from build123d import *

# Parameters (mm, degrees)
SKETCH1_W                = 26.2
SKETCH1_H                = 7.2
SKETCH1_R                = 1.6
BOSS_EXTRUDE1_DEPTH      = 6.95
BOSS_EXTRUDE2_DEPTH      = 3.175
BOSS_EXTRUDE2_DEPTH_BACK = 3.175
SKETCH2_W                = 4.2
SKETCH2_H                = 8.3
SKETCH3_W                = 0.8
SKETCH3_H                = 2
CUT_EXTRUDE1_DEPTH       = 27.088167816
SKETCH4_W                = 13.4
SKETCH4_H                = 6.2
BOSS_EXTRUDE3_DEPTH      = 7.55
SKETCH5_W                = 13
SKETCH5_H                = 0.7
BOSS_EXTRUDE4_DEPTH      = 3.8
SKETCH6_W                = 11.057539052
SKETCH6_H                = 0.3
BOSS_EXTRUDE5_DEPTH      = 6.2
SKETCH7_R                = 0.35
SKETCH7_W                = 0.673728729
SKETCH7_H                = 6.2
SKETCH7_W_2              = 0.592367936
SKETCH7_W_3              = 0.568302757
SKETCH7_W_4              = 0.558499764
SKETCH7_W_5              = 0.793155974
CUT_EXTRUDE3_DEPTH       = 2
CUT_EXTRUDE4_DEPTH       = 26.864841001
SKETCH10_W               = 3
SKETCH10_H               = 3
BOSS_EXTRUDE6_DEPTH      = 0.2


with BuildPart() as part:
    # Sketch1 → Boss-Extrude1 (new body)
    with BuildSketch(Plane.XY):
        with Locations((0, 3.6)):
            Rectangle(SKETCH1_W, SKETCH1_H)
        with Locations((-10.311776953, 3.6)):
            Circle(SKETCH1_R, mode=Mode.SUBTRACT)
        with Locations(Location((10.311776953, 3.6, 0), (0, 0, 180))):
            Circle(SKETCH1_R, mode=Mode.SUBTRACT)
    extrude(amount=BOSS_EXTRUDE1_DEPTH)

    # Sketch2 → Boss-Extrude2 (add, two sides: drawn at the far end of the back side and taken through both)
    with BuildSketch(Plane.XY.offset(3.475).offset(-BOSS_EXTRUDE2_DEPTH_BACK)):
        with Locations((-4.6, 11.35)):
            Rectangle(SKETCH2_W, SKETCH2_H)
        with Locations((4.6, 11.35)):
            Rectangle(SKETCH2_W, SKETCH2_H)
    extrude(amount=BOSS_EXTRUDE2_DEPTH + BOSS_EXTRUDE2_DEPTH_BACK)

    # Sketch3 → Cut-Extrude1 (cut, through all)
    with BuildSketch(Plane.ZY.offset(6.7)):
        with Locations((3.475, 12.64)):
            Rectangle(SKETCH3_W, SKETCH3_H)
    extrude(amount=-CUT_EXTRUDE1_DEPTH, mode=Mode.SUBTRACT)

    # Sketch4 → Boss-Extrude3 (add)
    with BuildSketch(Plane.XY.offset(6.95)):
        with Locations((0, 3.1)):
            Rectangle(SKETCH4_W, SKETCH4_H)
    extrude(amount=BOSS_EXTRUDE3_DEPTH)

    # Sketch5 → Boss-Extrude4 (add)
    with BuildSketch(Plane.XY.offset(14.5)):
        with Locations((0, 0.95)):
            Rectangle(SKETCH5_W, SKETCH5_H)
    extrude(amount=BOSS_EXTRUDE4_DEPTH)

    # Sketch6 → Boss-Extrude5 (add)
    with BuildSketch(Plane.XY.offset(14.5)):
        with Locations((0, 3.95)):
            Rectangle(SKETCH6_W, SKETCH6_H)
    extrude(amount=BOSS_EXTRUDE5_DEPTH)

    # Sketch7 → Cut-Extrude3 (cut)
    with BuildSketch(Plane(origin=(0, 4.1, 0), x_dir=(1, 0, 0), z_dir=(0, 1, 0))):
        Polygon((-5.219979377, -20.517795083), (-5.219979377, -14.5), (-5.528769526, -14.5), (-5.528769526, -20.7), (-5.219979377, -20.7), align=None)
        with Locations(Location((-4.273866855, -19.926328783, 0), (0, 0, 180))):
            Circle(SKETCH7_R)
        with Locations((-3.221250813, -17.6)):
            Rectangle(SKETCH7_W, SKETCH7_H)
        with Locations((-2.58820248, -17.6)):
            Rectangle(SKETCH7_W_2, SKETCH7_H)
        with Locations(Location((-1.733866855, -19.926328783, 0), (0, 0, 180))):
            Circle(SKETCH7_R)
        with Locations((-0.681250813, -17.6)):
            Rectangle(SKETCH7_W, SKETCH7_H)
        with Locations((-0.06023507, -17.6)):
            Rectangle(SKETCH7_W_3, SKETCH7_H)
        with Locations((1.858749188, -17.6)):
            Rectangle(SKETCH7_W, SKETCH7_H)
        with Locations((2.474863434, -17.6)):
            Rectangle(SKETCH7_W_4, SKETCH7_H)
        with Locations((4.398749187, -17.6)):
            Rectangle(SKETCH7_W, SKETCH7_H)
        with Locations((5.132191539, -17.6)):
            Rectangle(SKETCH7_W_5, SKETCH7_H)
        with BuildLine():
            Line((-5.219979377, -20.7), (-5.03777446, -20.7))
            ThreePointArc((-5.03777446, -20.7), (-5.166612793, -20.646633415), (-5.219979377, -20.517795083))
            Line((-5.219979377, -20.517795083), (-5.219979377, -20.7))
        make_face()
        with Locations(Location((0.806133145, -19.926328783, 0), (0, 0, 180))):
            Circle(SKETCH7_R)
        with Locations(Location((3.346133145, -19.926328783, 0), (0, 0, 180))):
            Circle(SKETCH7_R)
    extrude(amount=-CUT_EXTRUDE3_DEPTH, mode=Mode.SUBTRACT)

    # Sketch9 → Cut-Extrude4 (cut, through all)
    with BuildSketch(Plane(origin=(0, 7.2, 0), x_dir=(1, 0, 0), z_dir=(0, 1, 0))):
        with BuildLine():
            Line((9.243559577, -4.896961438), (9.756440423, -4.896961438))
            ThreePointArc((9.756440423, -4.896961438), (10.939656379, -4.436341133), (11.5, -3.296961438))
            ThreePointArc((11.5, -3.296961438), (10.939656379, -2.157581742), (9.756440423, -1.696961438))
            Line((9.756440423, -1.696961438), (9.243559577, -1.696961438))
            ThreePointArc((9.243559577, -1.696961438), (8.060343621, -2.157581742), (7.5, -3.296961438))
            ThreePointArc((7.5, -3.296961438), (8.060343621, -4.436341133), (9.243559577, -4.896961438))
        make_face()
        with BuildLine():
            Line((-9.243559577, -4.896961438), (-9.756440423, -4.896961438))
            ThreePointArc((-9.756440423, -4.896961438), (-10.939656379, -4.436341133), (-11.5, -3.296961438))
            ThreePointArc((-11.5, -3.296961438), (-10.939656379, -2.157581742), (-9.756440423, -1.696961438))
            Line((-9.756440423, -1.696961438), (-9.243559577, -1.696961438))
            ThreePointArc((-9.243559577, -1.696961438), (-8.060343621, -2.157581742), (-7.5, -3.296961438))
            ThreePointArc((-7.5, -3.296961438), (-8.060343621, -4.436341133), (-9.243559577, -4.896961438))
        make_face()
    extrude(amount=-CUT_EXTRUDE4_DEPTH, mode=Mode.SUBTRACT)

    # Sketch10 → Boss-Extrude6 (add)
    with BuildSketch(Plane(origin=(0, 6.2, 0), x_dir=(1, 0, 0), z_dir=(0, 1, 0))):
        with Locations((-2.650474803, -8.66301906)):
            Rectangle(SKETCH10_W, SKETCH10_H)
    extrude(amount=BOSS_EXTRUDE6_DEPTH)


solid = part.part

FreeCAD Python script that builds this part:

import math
import FreeCAD as App
import Part
import Sketcher

doc = App.newDocument("Part")
body = doc.addObject("PartDesign::Body", "Body")

sketch1 = body.newObject("Sketcher::SketchObject", "Sketch")
sketch1.AttachmentSupport = (doc.getObject("XY_Plane"), [""])
sketch1.MapMode = "FlatFace"
sketch1.addGeometry([
    Part.LineSegment(App.Vector(-13.1, 7.2, 0), App.Vector(-13.1, 0, 0)),
    Part.LineSegment(App.Vector(-13.1, 0, 0), App.Vector(13.1, 0, 0)),
    Part.LineSegment(App.Vector(13.1, 0, 0), App.Vector(13.1, 7.2, 0)),
    Part.LineSegment(App.Vector(13.1, 7.2, 0), App.Vector(-13.1, 7.2, 0)),
    Part.Circle(App.Vector(-10.3, 3.6, 0), App.Vector(0, 0, 1), 1.6),
    Part.Circle(App.Vector(10.3, 3.6, 0), App.Vector(0, 0, 1), 1.6),
], False)
sketch1.addConstraint([
    Sketcher.Constraint("Coincident", 0, 2, 1, 1),
    Sketcher.Constraint("Coincident", 1, 2, 2, 1),
    Sketcher.Constraint("Coincident", 2, 2, 3, 1),
    Sketcher.Constraint("Coincident", 3, 2, 0, 1),
    Sketcher.Constraint("Vertical", 0),
    Sketcher.Constraint("Horizontal", 1),
    Sketcher.Constraint("Vertical", 2),
    Sketcher.Constraint("Horizontal", 3),
    Sketcher.Constraint("Equal", 4, 5),
    Sketcher.Constraint("Symmetric", 0, 2, 1, 2, -1, 1),
    Sketcher.Constraint("Symmetric", 4, 3, 5, 3, -2),
    Sketcher.Constraint("Diameter", 4, 3.2),
    Sketcher.Constraint("DistanceX", 1, 1, 1, 2, 26.2),
    Sketcher.Constraint("DistanceY", 0, 2, 0, 1, 7.2),
    Sketcher.Constraint("DistanceY", -1, 1, 4, 3, 3.6),
    Sketcher.Constraint("DistanceX", 4, 3, -1, 1, 10.311777),
])
pad1 = body.newObject("PartDesign::Pad", "Pad")
pad1.Profile = sketch1
pad1.Length = 6.95

sketch2 = body.newObject("Sketcher::SketchObject", "Sketch001")
sketch2.AttachmentSupport = (doc.getObject("XY_Plane"), [""])
sketch2.MapMode = "FlatFace"
sketch2.AttachmentOffset = App.Placement(App.Vector(0, 0, 3.475), App.Rotation())
sketch2.addGeometry([
    Part.LineSegment(App.Vector(-6.7, 15.5, 0), App.Vector(-6.7, 7.2, 0)),
    Part.LineSegment(App.Vector(-6.7, 7.2, 0), App.Vector(-2.5, 7.2, 0)),
    Part.LineSegment(App.Vector(-2.5, 7.2, 0), App.Vector(-2.5, 15.5, 0)),
    Part.LineSegment(App.Vector(-2.5, 15.5, 0), App.Vector(-6.7, 15.5, 0)),
    Part.LineSegment(App.Vector(2.5, 15.5, 0), App.Vector(2.5, 7.2, 0)),
    Part.LineSegment(App.Vector(2.5, 7.2, 0), App.Vector(6.7, 7.2, 0)),
    Part.LineSegment(App.Vector(6.7, 7.2, 0), App.Vector(6.7, 15.5, 0)),
    Part.LineSegment(App.Vector(6.7, 15.5, 0), App.Vector(2.5, 15.5, 0)),
], False)
sketch2.addConstraint([
    Sketcher.Constraint("Coincident", 0, 2, 1, 1),
    Sketcher.Constraint("Coincident", 1, 2, 2, 1),
    Sketcher.Constraint("Coincident", 2, 2, 3, 1),
    Sketcher.Constraint("Coincident", 3, 2, 0, 1),
    Sketcher.Constraint("Coincident", 4, 2, 5, 1),
    Sketcher.Constraint("Coincident", 5, 2, 6, 1),
    Sketcher.Constraint("Coincident", 6, 2, 7, 1),
    Sketcher.Constraint("Coincident", 7, 2, 4, 1),
    Sketcher.Constraint("Vertical", 0),
    Sketcher.Constraint("Horizontal", 1),
    Sketcher.Constraint("Vertical", 2),
    Sketcher.Constraint("Horizontal", 3),
    Sketcher.Constraint("Vertical", 4),
    Sketcher.Constraint("Horizontal", 5),
    Sketcher.Constraint("Vertical", 6),
    Sketcher.Constraint("Horizontal", 7),
    Sketcher.Constraint("Symmetric", 1, 2, 4, 2, -2),
    Sketcher.Constraint("Symmetric", 3, 2, 6, 2, -2),
    Sketcher.Constraint("DistanceX", 1, 1, 1, 2, 4.2),
    Sketcher.Constraint("DistanceY", 0, 2, 0, 1, 8.3),
    Sketcher.Constraint("DistanceX", 1, 2, 4, 2, 5.0),
    Sketcher.Constraint("DistanceY", -1, 1, 0, 2, 7.2),
])
pad2 = body.newObject("PartDesign::Pad", "Pad001")
pad2.Profile = sketch2
pad2.Type = "TwoLengths"
pad2.Length = 3.175
pad2.Length2 = 3.175

sketch3 = body.newObject("Sketcher::SketchObject", "Sketch002")
sketch3.AttachmentSupport = (doc.getObject("YZ_Plane"), [""])
sketch3.MapMode = "FlatFace"
sketch3.AttachmentOffset = App.Placement(App.Vector(0, 0, -6.7), App.Rotation())
sketch3.addGeometry([
    Part.LineSegment(App.Vector(13.6, 3.1, 0), App.Vector(11.6, 3.1, 0)),
    Part.LineSegment(App.Vector(11.6, 3.1, 0), App.Vector(11.6, 3.9, 0)),
    Part.LineSegment(App.Vector(11.6, 3.9, 0), App.Vector(13.6, 3.9, 0)),
    Part.LineSegment(App.Vector(13.6, 3.9, 0), App.Vector(13.6, 3.1, 0)),
], False)
sketch3.addConstraint([
    Sketcher.Constraint("Coincident", 0, 2, 1, 1),
    Sketcher.Constraint("Coincident", 1, 2, 2, 1),
    Sketcher.Constraint("Coincident", 2, 2, 3, 1),
    Sketcher.Constraint("Coincident", 3, 2, 0, 1),
    Sketcher.Constraint("Horizontal", 0),
    Sketcher.Constraint("Vertical", 1),
    Sketcher.Constraint("Horizontal", 2),
    Sketcher.Constraint("Vertical", 3),
    Sketcher.Constraint("DistanceX", 0, 2, 0, 1, 2.0),
    Sketcher.Constraint("DistanceY", 1, 1, 1, 2, 0.8),
    Sketcher.Constraint("DistanceX", -1, 1, 0, 2, 11.64),
    Sketcher.Constraint("DistanceY", -1, 1, 0, 2, 3.075),
])
pocket1 = body.newObject("PartDesign::Pocket", "Pocket")
pocket1.Profile = sketch3
pocket1.Type = "ThroughAll"
pocket1.Reversed = True

sketch4 = body.newObject("Sketcher::SketchObject", "Sketch003")
sketch4.AttachmentSupport = (doc.getObject("XY_Plane"), [""])
sketch4.MapMode = "FlatFace"
sketch4.AttachmentOffset = App.Placement(App.Vector(0, 0, 6.95), App.Rotation())
sketch4.addGeometry([
    Part.LineSegment(App.Vector(-7, 6, 0), App.Vector(-7, 0, 0)),
    Part.LineSegment(App.Vector(-7, 0, 0), App.Vector(7, 0, 0)),
    Part.LineSegment(App.Vector(7, 0, 0), App.Vector(7, 6, 0)),
    Part.LineSegment(App.Vector(7, 6, 0), App.Vector(-7, 6, 0)),
], False)
sketch4.addConstraint([
    Sketcher.Constraint("Coincident", 0, 2, 1, 1),
    Sketcher.Constraint("Coincident", 1, 2, 2, 1),
    Sketcher.Constraint("Coincident", 2, 2, 3, 1),
    Sketcher.Constraint("Coincident", 3, 2, 0, 1),
    Sketcher.Constraint("Vertical", 0),
    Sketcher.Constraint("Horizontal", 1),
    Sketcher.Constraint("Vertical", 2),
    Sketcher.Constraint("Horizontal", 3),
    Sketcher.Constraint("Symmetric", 0, 2, 1, 2, -1, 1),
    Sketcher.Constraint("DistanceX", 1, 1, 1, 2, 13.4),
    Sketcher.Constraint("DistanceY", 0, 2, 0, 1, 6.2),
])
pad3 = body.newObject("PartDesign::Pad", "Pad002")
pad3.Profile = sketch4
pad3.Length = 7.55

sketch5 = body.newObject("Sketcher::SketchObject", "Sketch004")
sketch5.AttachmentSupport = (doc.getObject("XY_Plane"), [""])
sketch5.MapMode = "FlatFace"
sketch5.AttachmentOffset = App.Placement(App.Vector(0, 0, 14.5), App.Rotation())
sketch5.addGeometry([
    Part.LineSegment(App.Vector(-6.5, 1.3, 0), App.Vector(-6.5, 0.6, 0)),
    Part.LineSegment(App.Vector(-6.5, 0.6, 0), App.Vector(6.5, 0.6, 0)),
    Part.LineSegment(App.Vector(6.5, 0.6, 0), App.Vector(6.5, 1.3, 0)),
    Part.LineSegment(App.Vector(6.5, 1.3, 0), App.Vector(-6.5, 1.3, 0)),
], False)
sketch5.addConstraint([
    Sketcher.Constraint("Coincident", 0, 2, 1, 1),
    Sketcher.Constraint("Coincident", 1, 2, 2, 1),
    Sketcher.Constraint("Coincident", 2, 2, 3, 1),
    Sketcher.Constraint("Coincident", 3, 2, 0, 1),
    Sketcher.Constraint("Vertical", 0),
    Sketcher.Constraint("Horizontal", 1),
    Sketcher.Constraint("Vertical", 2),
    Sketcher.Constraint("Horizontal", 3),
    Sketcher.Constraint("DistanceX", 1, 1, 1, 2, 13.0),
    Sketcher.Constraint("DistanceY", 0, 2, 0, 1, 0.7),
    Sketcher.Constraint("DistanceX", 0, 2, -1, 1, 6.5),
    Sketcher.Constraint("DistanceY", -1, 1, 0, 2, 0.6),
])
pad4 = body.newObject("PartDesign::Pad", "Pad003")
pad4.Profile = sketch5
pad4.Length = 3.8

sketch6 = body.newObject("Sketcher::SketchObject", "Sketch005")
sketch6.AttachmentSupport = (doc.getObject("XY_Plane"), [""])
sketch6.MapMode = "FlatFace"
sketch6.AttachmentOffset = App.Placement(App.Vector(0, 0, 14.5), App.Rotation())
sketch6.addGeometry([
    Part.LineSegment(App.Vector(-5.53, 4.1, 0), App.Vector(-5.53, 3.8, 0)),
    Part.LineSegment(App.Vector(-5.53, 3.8, 0), App.Vector(5.53, 3.8, 0)),
    Part.LineSegment(App.Vector(5.53, 3.8, 0), App.Vector(5.53, 4.1, 0)),
    Part.LineSegment(App.Vector(5.53, 4.1, 0), App.Vector(-5.53, 4.1, 0)),
], False)
sketch6.addConstraint([
    Sketcher.Constraint("Coincident", 0, 2, 1, 1),
    Sketcher.Constraint("Coincident", 1, 2, 2, 1),
    Sketcher.Constraint("Coincident", 2, 2, 3, 1),
    Sketcher.Constraint("Coincident", 3, 2, 0, 1),
    Sketcher.Constraint("Vertical", 0),
    Sketcher.Constraint("Horizontal", 1),
    Sketcher.Constraint("Vertical", 2),
    Sketcher.Constraint("Horizontal", 3),
    Sketcher.Constraint("DistanceY", 0, 2, 0, 1, 0.3),
    Sketcher.Constraint("DistanceY", -1, 1, 0, 2, 3.8),
    Sketcher.Constraint("DistanceX", 1, 1, 1, 2, 11.057539),
    Sketcher.Constraint("DistanceX", 0, 2, -1, 1, 5.52877),
])
pad5 = body.newObject("PartDesign::Pad", "Pad004")
pad5.Profile = sketch6
pad5.Length = 6.2

sketch7 = body.newObject("Sketcher::SketchObject", "Sketch006")
sketch7.AttachmentSupport = (doc.getObject("XZ_Plane"), [""])
sketch7.MapMode = "FlatFace"
sketch7.AttachmentOffset = App.Placement(App.Vector(0, 0, -4.1), App.Rotation())
sketch7.addGeometry([
    Part.LineSegment(App.Vector(-5.22, 14.5, 0), App.Vector(-5.53, 14.5, 0)),
    Part.LineSegment(App.Vector(-5.53, 14.5, 0), App.Vector(-5.53, 20.7, 0)),
    Part.LineSegment(App.Vector(-5.53, 20.7, 0), App.Vector(-5.04, 20.7, 0)),
    Part.ArcOfCircle(Part.Circle(App.Vector(-5.04, 20.52, 0), App.Vector(0, 0, 1), 0.18), math.radians(90), math.radians(180)),
    Part.LineSegment(App.Vector(-5.22, 20.52, 0), App.Vector(-5.22, 14.5, 0)),
    Part.Circle(App.Vector(-4.27, 19.93, 0), App.Vector(0, 0, 1), 0.35),
    Part.LineSegment(App.Vector(-3.56, 14.5, 0), App.Vector(-3.56, 20.7, 0)),
    Part.LineSegment(App.Vector(-3.56, 20.7, 0), App.Vector(-2.29, 20.7, 0)),
    Part.LineSegment(App.Vector(-2.29, 20.7, 0), App.Vector(-2.29, 14.5, 0)),
    Part.LineSegment(App.Vector(-2.29, 14.5, 0), App.Vector(-3.56, 14.5, 0)),
    Part.Circle(App.Vector(-1.73, 19.93, 0), App.Vector(0, 0, 1), 0.35),
    Part.LineSegment(App.Vector(-1.02, 14.5, 0), App.Vector(-1.02, 20.7, 0)),
    Part.LineSegment(App.Vector(-1.02, 20.7, 0), App.Vector(0.22, 20.7, 0)),
    Part.LineSegment(App.Vector(0.22, 20.7, 0), App.Vector(0.22, 14.5, 0)),
    Part.LineSegment(App.Vector(0.22, 14.5, 0), App.Vector(-1.02, 14.5, 0)),
    Part.LineSegment(App.Vector(1.52, 14.5, 0), App.Vector(1.52, 20.7, 0)),
    Part.LineSegment(App.Vector(1.52, 20.7, 0), App.Vector(2.75, 20.7, 0)),
    Part.LineSegment(App.Vector(2.75, 20.7, 0), App.Vector(2.75, 14.5, 0)),
    Part.LineSegment(App.Vector(2.75, 14.5, 0), App.Vector(1.52, 14.5, 0)),
    Part.LineSegment(App.Vector(4.06, 14.5, 0), App.Vector(4.06, 20.7, 0)),
    Part.LineSegment(App.Vector(4.06, 20.7, 0), App.Vector(5.53, 20.7, 0)),
    Part.LineSegment(App.Vector(5.53, 20.7, 0), App.Vector(5.53, 14.5, 0)),
    Part.LineSegment(App.Vector(5.53, 14.5, 0), App.Vector(4.06, 14.5, 0)),
    Part.Circle(App.Vector(0.81, 19.93, 0), App.Vector(0, 0, 1), 0.35),
    Part.Circle(App.Vector(3.35, 19.93, 0), App.Vector(0, 0, 1), 0.35),
], False)
sketch7.addConstraint([
    Sketcher.Constraint("Coincident", 0, 2, 1, 1),
    Sketcher.Constraint("Coincident", 1, 2, 2, 1),
    Sketcher.Constraint("Tangent", 2, 2, 3, 1),
    Sketcher.Constraint("Tangent", 3, 2, 4, 1),
    Sketcher.Constraint("Coincident", 4, 2, 0, 1),
    Sketcher.Constraint("Coincident", 6, 2, 7, 1),
    Sketcher.Constraint("Coincident", 7, 2, 8, 1),
    Sketcher.Constraint("Coincident", 8, 2, 9, 1),
    Sketcher.Constraint("Coincident", 9, 2, 6, 1),
    Sketcher.Constraint("Coincident", 11, 2, 12, 1),
    Sketcher.Constraint("Coincident", 12, 2, 13, 1),
    Sketcher.Constraint("Coincident", 13, 2, 14, 1),
    Sketcher.Constraint("Coincident", 14, 2, 11, 1),
    Sketcher.Constraint("Coincident", 15, 2, 16, 1),
    Sketcher.Constraint("Coincident", 16, 2, 17, 1),
    Sketcher.Constraint("Coincident", 17, 2, 18, 1),
    Sketcher.Constraint("Coincident", 18, 2, 15, 1),
    Sketcher.Constraint("Coincident", 19, 2, 20, 1),
    Sketcher.Constraint("Coincident", 20, 2, 21, 1),
    Sketcher.Constraint("Coincident", 21, 2, 22, 1),
    Sketcher.Constraint("Coincident", 22, 2, 19, 1),
    Sketcher.Constraint("Horizontal", 0),
    Sketcher.Constraint("Vertical", 1),
    Sketcher.Constraint("Horizontal", 2),
    Sketcher.Constraint("Vertical", 4),
    Sketcher.Constraint("Vertical", 6),
    Sketcher.Constraint("Horizontal", 7),
    Sketcher.Constraint("Vertical", 8),
    Sketcher.Constraint("Horizontal", 9),
    Sketcher.Constraint("Vertical", 11),
    Sketcher.Constraint("Horizontal", 12),
    Sketcher.Constraint("Vertical", 13),
    Sketcher.Constraint("Horizontal", 14),
    Sketcher.Constraint("Vertical", 15),
    Sketcher.Constraint("Horizontal", 16),
    Sketcher.Constraint("Vertical", 17),
    Sketcher.Constraint("Horizontal", 18),
    Sketcher.Constraint("Vertical", 19),
    Sketcher.Constraint("Horizontal", 20),
    Sketcher.Constraint("Vertical", 21),
    Sketcher.Constraint("Horizontal", 22),
    Sketcher.Constraint("Equal", 5, 10),
    Sketcher.Constraint("Equal", 10, 23),
    Sketcher.Constraint("Equal", 23, 24),
    Sketcher.Constraint("Symmetric", 1, 2, 20, 2, -2),
    Sketcher.Constraint("Horizontal", 5, 3, 10, 3),
    Sketcher.Constraint("Horizontal", 10, 3, 23, 3),
    Sketcher.Constraint("Horizontal", 23, 3, 24, 3),
    Sketcher.Constraint("Horizontal", 2, 2, 6, 2),
    Sketcher.Constraint("Horizontal", 4, 2, 8, 2),
    Sketcher.Constraint("Horizontal", 7, 2, 11, 2),
    Sketcher.Constraint("Horizontal", 9, 2, 13, 2),
    Sketcher.Constraint("Horizontal", 12, 2, 15, 2),
    Sketcher.Constraint("Horizontal", 14, 2, 17, 2),
    Sketcher.Constraint("Horizontal", 18, 2, 21, 2),
    Sketcher.Constraint("Diameter", 5, 0.7),
    Sketcher.Constraint("DistanceY", 1, 1, 1, 2, 6.2),
    Sketcher.Constraint("DistanceY", -1, 1, 0, 2, 14.5),
    Sketcher.Constraint("DistanceX", 5, 3, 10, 3, 2.54),
    Sketcher.Constraint("DistanceX", 10, 3, 23, 3, 2.54),
    Sketcher.Constraint("DistanceX", 23, 3, 24, 3, 2.54),
    Sketcher.Constraint("DistanceX", 6, 2, 11, 2, 2.54),
    Sketcher.Constraint("DistanceX", 11, 2, 15, 2, 2.54),
    Sketcher.Constraint("DistanceX", 15, 2, 19, 2, 2.54),
    Sketcher.Constraint("Radius", 3, 0.182205),
    Sketcher.Constraint("DistanceX", 0, 2, 0, 1, 0.30879),
    Sketcher.Constraint("DistanceX", 12, 1, 12, 2, 1.242031),
    Sketcher.Constraint("DistanceX", 16, 1, 16, 2, 1.232228),
    Sketcher.Constraint("DistanceX", 7, 1, 7, 2, 1.266097),
    Sketcher.Constraint("DistanceX", 20, 1, 20, 2, 1.466885),
    Sketcher.Constraint("DistanceY", -1, 1, 5, 3, 19.926329),
    Sketcher.Constraint("DistanceX", 0, 2, -1, 1, 5.52877),
    Sketcher.Constraint("DistanceX", 5, 3, 6, 2, 0.715752),
])
pocket2 = body.newObject("PartDesign::Pocket", "Pocket001")
pocket2.Profile = sketch7
pocket2.Length = 2
pocket2.Reversed = True

sketch8 = body.newObject("Sketcher::SketchObject", "Sketch007")
sketch8.AttachmentSupport = (doc.getObject("XZ_Plane"), [""])
sketch8.MapMode = "FlatFace"
sketch8.AttachmentOffset = App.Placement(App.Vector(0, 0, -7.2), App.Rotation())
sketch8.addGeometry([
    Part.LineSegment(App.Vector(9.2, 4.9, 0), App.Vector(9.8, 4.9, 0)),
    Part.ArcOfCircle(Part.Circle(App.Vector(9.8, 3.1, 0), App.Vector(0, 0, 1), 1.8), math.radians(5), math.radians(90)),
    Part.ArcOfCircle(Part.Circle(App.Vector(9.8, 3.4, 0), App.Vector(0, 0, 1), 1.8), math.radians(-90), math.radians(-5)),
    Part.LineSegment(App.Vector(9.8, 1.7, 0), App.Vector(9.2, 1.7, 0)),
    Part.ArcOfCircle(Part.Circle(App.Vector(9.2, 3.4, 0), App.Vector(0, 0, 1), 1.8), math.radians(-175), math.radians(-90)),
    Part.ArcOfCircle(Part.Circle(App.Vector(9.2, 3.1, 0), App.Vector(0, 0, 1), 1.8), math.radians(90), math.radians(175)),
    Part.LineSegment(App.Vector(-9.8, 4.9, 0), App.Vector(-9.2, 4.9, 0)),
    Part.ArcOfCircle(Part.Circle(App.Vector(-9.2, 3.1, 0), App.Vector(0, 0, 1), 1.8), math.radians(5), math.radians(90)),
    Part.ArcOfCircle(Part.Circle(App.Vector(-9.2, 3.4, 0), App.Vector(0, 0, 1), 1.8), math.radians(-90), math.radians(-5)),
    Part.LineSegment(App.Vector(-9.2, 1.7, 0), App.Vector(-9.8, 1.7, 0)),
    Part.ArcOfCircle(Part.Circle(App.Vector(-9.8, 3.4, 0), App.Vector(0, 0, 1), 1.8), math.radians(-175), math.radians(-90)),
    Part.ArcOfCircle(Part.Circle(App.Vector(-9.8, 3.1, 0), App.Vector(0, 0, 1), 1.8), math.radians(90), math.radians(175)),
], False)
sketch8.addConstraint([
    Sketcher.Constraint("Tangent", 0, 2, 1, 2),
    Sketcher.Constraint("Coincident", 1, 1, 2, 2),
    Sketcher.Constraint("Tangent", 2, 1, 3, 1),
    Sketcher.Constraint("Tangent", 3, 2, 4, 2),
    Sketcher.Constraint("Coincident", 4, 1, 5, 2),
    Sketcher.Constraint("Tangent", 5, 1, 0, 1),
    Sketcher.Constraint("Tangent", 6, 2, 7, 2),
    Sketcher.Constraint("Coincident", 7, 1, 8, 2),
    Sketcher.Constraint("Tangent", 8, 1, 9, 1),
    Sketcher.Constraint("Tangent", 9, 2, 10, 2),
    Sketcher.Constraint("Coincident", 10, 1, 11, 2),
    Sketcher.Constraint("Tangent", 11, 1, 6, 1),
    Sketcher.Constraint("Horizontal", 0),
    Sketcher.Constraint("Horizontal", 3),
    Sketcher.Constraint("Horizontal", 6),
    Sketcher.Constraint("Horizontal", 9),
    Sketcher.Constraint("Equal", 1, 2),
    Sketcher.Constraint("Equal", 2, 4),
    Sketcher.Constraint("Equal", 4, 5),
    Sketcher.Constraint("Equal", 5, 7),
    Sketcher.Constraint("Equal", 7, 8),
    Sketcher.Constraint("Equal", 8, 10),
    Sketcher.Constraint("Equal", 10, 11),
    Sketcher.Constraint("Symmetric", 5, 3, 7, 3, -2),
    Sketcher.Constraint("Symmetric", 4, 3, 8, 3, -2),
    Sketcher.Constraint("Symmetric", 1, 1, 10, 1, -2),
    Sketcher.Constraint("Horizontal", 1, 1, 4, 1),
    Sketcher.Constraint("Vertical", 1, 3, 2, 3),
    Sketcher.Constraint("Radius", 1, 1.75),
    Sketcher.Constraint("DistanceX", 7, 3, 1, 3, 19.0),
    Sketcher.Constraint("DistanceX", -1, 1, 1, 1, 11.5),
    Sketcher.Constraint("DistanceY", 1, 3, 2, 3, 0.3),
    Sketcher.Constraint("DistanceY", -1, 1, 1, 3, 3.146961),
])
pocket3 = body.newObject("PartDesign::Pocket", "Pocket002")
pocket3.Profile = sketch8
pocket3.Type = "ThroughAll"
pocket3.Reversed = True

sketch9 = body.newObject("Sketcher::SketchObject", "Sketch008")
sketch9.AttachmentSupport = (doc.getObject("XZ_Plane"), [""])
sketch9.MapMode = "FlatFace"
sketch9.AttachmentOffset = App.Placement(App.Vector(0, 0, -6.2), App.Rotation())
sketch9.addGeometry([
    Part.LineSegment(App.Vector(-4.2, 7.2, 0), App.Vector(-4.2, 10.2, 0)),
    Part.LineSegment(App.Vector(-4.2, 10.2, 0), App.Vector(-1.2, 10.2, 0)),
    Part.LineSegment(App.Vector(-1.2, 10.2, 0), App.Vector(-1.2, 7.2, 0)),
    Part.LineSegment(App.Vector(-1.2, 7.2, 0), App.Vector(-4.2, 7.2, 0)),
], False)
sketch9.addConstraint([
    Sketcher.Constraint("Coincident", 0, 2, 1, 1),
    Sketcher.Constraint("Coincident", 1, 2, 2, 1),
    Sketcher.Constraint("Coincident", 2, 2, 3, 1),
    Sketcher.Constraint("Coincident", 3, 2, 0, 1),
    Sketcher.Constraint("Vertical", 0),
    Sketcher.Constraint("Horizontal", 1),
    Sketcher.Constraint("Vertical", 2),
    Sketcher.Constraint("Horizontal", 3),
    Sketcher.Constraint("Equal", 3, 0),
    Sketcher.Constraint("DistanceX", 1, 1, 1, 2, 3.0),
    Sketcher.Constraint("DistanceY", -1, 1, 0, 2, 10.163019),
    Sketcher.Constraint("DistanceX", 0, 2, -1, 1, 4.150475),
])
pad6 = body.newObject("PartDesign::Pad", "Pad005")
pad6.Profile = sketch9
pad6.Length = 0.2
pad6.Reversed = True

doc.recompute()
